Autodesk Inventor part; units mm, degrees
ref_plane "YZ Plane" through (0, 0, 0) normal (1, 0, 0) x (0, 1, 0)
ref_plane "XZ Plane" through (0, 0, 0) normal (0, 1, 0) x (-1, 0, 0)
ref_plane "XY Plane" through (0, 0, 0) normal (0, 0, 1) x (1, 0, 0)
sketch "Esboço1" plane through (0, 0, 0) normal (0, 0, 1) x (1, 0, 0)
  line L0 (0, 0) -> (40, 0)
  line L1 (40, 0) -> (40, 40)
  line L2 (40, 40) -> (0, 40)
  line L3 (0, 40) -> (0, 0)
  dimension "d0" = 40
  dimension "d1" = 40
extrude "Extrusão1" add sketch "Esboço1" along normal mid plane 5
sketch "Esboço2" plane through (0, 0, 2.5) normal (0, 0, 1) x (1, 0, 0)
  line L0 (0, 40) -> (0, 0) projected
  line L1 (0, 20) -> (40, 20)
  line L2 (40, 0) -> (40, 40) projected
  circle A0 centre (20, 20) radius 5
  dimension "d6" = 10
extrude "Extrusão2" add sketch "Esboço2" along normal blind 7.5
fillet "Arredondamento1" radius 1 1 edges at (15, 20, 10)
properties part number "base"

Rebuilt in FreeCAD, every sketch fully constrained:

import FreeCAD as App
import Part
import Sketcher
Q = App.Units.Quantity


def edges_at(feature, points):
    """Names of the edges that pass closest to the given points."""
    edges = feature.Shape.Edges
    near = lambda p: min(range(len(edges)), key=lambda i: edges[i].distToShape(Part.Vertex(*p))[0])
    return sorted({f"Edge{near(p) + 1}" for p in points})

doc = App.newDocument("Part")
body = doc.addObject("PartDesign::Body", "Body")

# Sketch on XY plane
sketch1 = body.newObject("Sketcher::SketchObject", "Sketch")
sketch1.AttachmentSupport = (doc.getObject("XY_Plane"), [""])
sketch1.MapMode = "FlatFace"
sketch1.addGeometry(Part.LineSegment(App.Vector(0, 40, 0), App.Vector(0, 0, 0)), False)
sketch1.addGeometry(Part.LineSegment(App.Vector(0, 0, 0), App.Vector(40, 0, 0)), False)
sketch1.addGeometry(Part.LineSegment(App.Vector(40, 0, 0), App.Vector(40, 40, 0)), False)
sketch1.addGeometry(Part.LineSegment(App.Vector(40, 40, 0), App.Vector(0, 40, 0)), False)
sketch1.addConstraint(Sketcher.Constraint("Coincident", 0, 2, 1, 1))
sketch1.addConstraint(Sketcher.Constraint("Coincident", 1, 2, 2, 1))
sketch1.addConstraint(Sketcher.Constraint("Coincident", 2, 2, 3, 1))
sketch1.addConstraint(Sketcher.Constraint("Coincident", 3, 2, 0, 1))
sketch1.addConstraint(Sketcher.Constraint("Vertical", 0))
sketch1.addConstraint(Sketcher.Constraint("Horizontal", 1))
sketch1.addConstraint(Sketcher.Constraint("Vertical", 2))
sketch1.addConstraint(Sketcher.Constraint("Horizontal", 3))
sketch1.addConstraint(Sketcher.Constraint("Coincident", 0, 2, -1, 1))
sketch1.addConstraint(Sketcher.Constraint("Equal", 3, 0))
sketch1.addConstraint(Sketcher.Constraint("DistanceX", 1, 1, 1, 2, Q("40 mm")))
pad1 = body.newObject("PartDesign::Pad", "Pad")
pad1.Profile = sketch1
pad1.Length = 5
pad1.Midplane = True

# Sketch on XY plane
sketch2 = body.newObject("Sketcher::SketchObject", "Sketch001")
sketch2.AttachmentSupport = (doc.getObject("XY_Plane"), [""])
sketch2.MapMode = "FlatFace"
sketch2.AttachmentOffset = App.Placement(App.Vector(0, 0, 2.5), App.Rotation())
sketch2.addGeometry(Part.Circle(App.Vector(20, 20, 0), App.Vector(0, 0, 1), 5), False)
sketch2.addConstraint(Sketcher.Constraint("Diameter", 0, Q("10 mm")))
sketch2.addConstraint(Sketcher.Constraint("DistanceX", -1, 1, 0, 3, Q("20 mm")))
sketch2.addConstraint(Sketcher.Constraint("DistanceY", -1, 1, 0, 3, Q("20 mm")))
pad2 = body.newObject("PartDesign::Pad", "Pad001")
pad2.Profile = sketch2
pad2.Length = 7.5
doc.recompute()

fillet = body.newObject("PartDesign::Fillet", "Fillet")
fillet.Base = (pad2, edges_at(pad2, [(15, 20, 10)]))
fillet.Radius = 1

doc.recompute()
